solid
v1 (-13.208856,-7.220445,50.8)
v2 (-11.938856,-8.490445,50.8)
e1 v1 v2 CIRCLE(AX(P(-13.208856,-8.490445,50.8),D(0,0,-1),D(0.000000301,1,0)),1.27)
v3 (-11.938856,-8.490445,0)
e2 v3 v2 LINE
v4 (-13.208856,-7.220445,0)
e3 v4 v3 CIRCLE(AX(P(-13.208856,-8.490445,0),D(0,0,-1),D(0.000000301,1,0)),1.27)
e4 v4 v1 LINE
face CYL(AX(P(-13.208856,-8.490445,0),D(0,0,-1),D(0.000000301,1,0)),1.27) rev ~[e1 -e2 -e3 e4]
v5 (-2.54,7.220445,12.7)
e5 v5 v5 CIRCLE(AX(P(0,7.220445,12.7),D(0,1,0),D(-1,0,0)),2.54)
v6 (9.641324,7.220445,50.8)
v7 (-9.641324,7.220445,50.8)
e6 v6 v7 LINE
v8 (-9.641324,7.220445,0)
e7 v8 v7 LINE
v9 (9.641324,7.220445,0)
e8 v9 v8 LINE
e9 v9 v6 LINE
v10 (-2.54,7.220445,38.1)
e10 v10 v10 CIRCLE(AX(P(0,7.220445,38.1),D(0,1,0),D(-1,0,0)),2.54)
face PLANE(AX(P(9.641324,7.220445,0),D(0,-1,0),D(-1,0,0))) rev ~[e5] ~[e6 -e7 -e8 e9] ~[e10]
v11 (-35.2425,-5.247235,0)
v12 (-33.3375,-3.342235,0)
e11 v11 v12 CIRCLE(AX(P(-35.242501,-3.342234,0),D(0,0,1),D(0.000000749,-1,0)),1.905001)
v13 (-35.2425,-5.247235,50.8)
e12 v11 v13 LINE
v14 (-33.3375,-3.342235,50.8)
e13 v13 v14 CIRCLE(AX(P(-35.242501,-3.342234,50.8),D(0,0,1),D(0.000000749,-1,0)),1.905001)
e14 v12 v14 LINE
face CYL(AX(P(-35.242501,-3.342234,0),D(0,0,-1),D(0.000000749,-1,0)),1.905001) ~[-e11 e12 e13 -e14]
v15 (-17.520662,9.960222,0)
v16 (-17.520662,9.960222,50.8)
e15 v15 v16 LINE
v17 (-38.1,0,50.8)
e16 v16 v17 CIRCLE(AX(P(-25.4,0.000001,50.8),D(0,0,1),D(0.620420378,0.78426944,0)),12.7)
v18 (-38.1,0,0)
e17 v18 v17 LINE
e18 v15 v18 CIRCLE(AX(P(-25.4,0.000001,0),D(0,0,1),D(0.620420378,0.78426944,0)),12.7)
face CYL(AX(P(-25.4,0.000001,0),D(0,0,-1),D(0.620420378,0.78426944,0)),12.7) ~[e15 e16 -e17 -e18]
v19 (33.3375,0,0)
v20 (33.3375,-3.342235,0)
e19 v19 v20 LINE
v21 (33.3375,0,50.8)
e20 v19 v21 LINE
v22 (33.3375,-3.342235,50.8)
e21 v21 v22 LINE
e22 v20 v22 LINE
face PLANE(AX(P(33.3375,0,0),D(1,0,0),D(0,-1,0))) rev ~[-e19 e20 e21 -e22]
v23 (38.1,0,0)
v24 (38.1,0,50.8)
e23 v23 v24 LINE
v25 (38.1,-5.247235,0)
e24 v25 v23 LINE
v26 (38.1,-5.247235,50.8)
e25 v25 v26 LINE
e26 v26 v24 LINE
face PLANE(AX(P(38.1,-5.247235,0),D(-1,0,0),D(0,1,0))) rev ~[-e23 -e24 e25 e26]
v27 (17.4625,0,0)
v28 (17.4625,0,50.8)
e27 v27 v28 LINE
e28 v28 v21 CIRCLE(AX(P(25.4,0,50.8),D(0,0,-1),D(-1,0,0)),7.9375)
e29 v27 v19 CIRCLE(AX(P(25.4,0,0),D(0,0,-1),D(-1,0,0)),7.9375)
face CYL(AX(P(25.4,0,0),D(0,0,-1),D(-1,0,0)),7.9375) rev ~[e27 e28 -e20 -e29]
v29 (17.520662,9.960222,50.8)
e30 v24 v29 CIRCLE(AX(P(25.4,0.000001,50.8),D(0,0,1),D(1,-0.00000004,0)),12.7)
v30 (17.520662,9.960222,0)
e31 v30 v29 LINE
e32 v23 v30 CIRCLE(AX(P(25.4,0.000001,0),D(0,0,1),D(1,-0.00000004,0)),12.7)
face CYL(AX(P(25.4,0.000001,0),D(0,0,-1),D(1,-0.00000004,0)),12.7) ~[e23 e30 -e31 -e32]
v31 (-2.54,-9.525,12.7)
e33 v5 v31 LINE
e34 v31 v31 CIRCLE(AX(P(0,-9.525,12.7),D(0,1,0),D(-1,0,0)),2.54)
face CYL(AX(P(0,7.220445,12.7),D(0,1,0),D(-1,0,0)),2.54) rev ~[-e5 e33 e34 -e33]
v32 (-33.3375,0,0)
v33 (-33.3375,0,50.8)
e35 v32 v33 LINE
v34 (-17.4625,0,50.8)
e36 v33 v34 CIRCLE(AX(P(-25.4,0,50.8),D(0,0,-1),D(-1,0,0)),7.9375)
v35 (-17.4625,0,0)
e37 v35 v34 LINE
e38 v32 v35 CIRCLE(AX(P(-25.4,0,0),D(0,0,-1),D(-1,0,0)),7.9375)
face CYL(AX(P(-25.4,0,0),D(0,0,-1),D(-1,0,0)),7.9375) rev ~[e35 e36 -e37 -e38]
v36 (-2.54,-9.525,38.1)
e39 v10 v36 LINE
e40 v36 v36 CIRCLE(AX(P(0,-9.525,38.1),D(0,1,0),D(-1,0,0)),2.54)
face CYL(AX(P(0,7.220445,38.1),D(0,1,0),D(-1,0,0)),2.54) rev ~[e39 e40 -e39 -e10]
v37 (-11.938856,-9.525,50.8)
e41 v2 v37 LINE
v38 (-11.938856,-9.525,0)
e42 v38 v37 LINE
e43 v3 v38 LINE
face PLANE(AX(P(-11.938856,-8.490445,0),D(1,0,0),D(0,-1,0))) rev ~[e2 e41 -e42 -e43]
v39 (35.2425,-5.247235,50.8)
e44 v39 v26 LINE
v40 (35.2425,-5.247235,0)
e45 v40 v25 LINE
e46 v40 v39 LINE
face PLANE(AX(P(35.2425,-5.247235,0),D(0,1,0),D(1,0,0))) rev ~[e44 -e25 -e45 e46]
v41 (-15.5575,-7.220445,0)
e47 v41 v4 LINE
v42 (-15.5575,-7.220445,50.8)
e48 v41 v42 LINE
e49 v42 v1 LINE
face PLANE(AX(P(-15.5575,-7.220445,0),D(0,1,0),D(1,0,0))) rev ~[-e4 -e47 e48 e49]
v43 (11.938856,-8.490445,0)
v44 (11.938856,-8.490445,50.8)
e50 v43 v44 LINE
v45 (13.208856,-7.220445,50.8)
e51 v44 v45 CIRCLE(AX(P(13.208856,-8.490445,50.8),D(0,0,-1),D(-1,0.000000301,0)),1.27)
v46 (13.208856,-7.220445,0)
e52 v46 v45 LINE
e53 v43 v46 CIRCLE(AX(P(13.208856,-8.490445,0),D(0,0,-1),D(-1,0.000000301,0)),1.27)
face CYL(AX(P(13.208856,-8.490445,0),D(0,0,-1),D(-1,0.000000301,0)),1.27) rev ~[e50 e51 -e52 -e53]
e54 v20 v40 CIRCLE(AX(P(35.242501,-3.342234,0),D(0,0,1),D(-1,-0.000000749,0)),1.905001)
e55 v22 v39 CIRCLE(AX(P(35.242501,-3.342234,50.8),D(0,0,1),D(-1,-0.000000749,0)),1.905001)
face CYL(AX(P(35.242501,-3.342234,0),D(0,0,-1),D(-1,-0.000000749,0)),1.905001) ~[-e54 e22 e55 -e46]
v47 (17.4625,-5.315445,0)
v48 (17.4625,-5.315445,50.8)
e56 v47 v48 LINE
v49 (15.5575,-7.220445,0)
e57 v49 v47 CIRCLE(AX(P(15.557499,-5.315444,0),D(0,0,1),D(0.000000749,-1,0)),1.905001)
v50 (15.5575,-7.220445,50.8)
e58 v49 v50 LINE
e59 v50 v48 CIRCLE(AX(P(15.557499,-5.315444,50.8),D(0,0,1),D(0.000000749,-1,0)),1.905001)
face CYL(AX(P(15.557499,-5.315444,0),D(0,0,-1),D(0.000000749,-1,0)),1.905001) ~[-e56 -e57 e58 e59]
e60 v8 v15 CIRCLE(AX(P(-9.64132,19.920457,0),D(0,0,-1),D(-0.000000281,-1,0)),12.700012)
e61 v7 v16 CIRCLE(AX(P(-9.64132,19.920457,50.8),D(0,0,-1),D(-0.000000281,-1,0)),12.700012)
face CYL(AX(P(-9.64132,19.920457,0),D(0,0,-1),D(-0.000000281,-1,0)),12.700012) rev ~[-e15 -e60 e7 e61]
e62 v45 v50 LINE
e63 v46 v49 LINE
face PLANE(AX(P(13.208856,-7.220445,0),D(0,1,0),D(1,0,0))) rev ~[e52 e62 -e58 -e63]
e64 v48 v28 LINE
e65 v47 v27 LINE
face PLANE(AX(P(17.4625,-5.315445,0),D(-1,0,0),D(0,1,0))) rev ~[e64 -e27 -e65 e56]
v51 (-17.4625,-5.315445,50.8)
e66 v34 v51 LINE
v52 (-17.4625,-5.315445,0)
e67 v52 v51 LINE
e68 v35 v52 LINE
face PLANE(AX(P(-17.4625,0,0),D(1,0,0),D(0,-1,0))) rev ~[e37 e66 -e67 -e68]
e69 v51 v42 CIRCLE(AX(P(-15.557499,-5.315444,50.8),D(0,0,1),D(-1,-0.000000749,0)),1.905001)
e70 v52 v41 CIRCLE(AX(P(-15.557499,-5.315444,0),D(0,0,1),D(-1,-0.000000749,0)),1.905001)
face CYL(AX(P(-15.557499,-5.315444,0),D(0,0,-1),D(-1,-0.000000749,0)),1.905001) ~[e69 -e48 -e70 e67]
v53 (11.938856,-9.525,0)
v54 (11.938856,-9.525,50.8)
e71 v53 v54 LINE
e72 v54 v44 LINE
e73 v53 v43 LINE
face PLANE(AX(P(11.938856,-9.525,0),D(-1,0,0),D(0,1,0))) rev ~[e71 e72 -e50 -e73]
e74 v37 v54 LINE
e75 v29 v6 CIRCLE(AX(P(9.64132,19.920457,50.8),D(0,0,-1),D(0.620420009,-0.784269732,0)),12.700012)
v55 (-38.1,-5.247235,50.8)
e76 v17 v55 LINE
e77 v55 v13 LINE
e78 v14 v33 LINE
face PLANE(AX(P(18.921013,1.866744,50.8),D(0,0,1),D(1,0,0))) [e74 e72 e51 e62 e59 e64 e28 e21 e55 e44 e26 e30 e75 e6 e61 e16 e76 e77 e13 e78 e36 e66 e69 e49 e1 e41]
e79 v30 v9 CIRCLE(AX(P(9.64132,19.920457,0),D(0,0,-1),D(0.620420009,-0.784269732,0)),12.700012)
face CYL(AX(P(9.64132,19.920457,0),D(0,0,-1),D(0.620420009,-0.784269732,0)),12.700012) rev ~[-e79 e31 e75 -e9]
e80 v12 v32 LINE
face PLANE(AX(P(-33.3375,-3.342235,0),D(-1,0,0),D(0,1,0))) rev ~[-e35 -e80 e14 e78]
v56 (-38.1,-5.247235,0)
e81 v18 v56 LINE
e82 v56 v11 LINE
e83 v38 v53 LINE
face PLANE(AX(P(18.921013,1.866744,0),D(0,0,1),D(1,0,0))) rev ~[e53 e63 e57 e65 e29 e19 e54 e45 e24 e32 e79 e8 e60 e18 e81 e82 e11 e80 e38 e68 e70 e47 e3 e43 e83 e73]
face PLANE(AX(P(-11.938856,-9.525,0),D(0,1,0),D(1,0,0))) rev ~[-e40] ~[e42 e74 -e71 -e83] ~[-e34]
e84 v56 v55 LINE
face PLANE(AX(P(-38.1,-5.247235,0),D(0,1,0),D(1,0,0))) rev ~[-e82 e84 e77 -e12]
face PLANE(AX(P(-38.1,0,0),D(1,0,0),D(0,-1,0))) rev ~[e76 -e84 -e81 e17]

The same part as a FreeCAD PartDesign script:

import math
import FreeCAD as App
import Part
import Sketcher
Q = App.Units.Quantity

doc = App.newDocument("Part")
params = doc.addObject("Spreadsheet::Sheet", "Params")
for row, (alias, value) in enumerate([
    ("sketch1_radius", "0.5 in"),
    ("sketch1_radius2", "0.05 in"),
    ("sketch1_radius3", "0.0750001 in"),
    ("sketch1_radius4", "0.3125 in"),
    ("pad1_length", "2 in"),
    ("sketch2_diameter", "0.2 in"),
], start=1):
    params.set(f"A{row}", alias)
    params.set(f"B{row}", "=" + value)
    params.setAlias(f"B{row}", alias)

body = doc.addObject("PartDesign::Body", "Body")

# Sketch on XY plane
sketch1 = doc.addObject("Sketcher::SketchObject", "Sketch")
body.addObject(sketch1)
sketch1.AttachmentSupport = (doc.XY_Plane, [""])
sketch1.MapMode = "FlatFace"
sketch1.addGeometry(Part.LineSegment(App.Vector(38.1, -5.247235, 0), App.Vector(38.1, 0, 0)), False)
sketch1.addGeometry(Part.ArcOfCircle(Part.Circle(App.Vector(25.4, 0.000001, 0), App.Vector(0, 0, 1), 12.7), math.radians(-0.000002), math.radians(128.346839)), False)
sketch1.addGeometry(Part.ArcOfCircle(Part.Circle(App.Vector(9.64132, 19.920457, 0), App.Vector(0, 0, 1), 12.700012), math.radians(-89.999984), math.radians(-51.653188)), False)
sketch1.addGeometry(Part.LineSegment(App.Vector(9.641324, 7.220445, 0), App.Vector(-9.641324, 7.220445, 0)), False)
sketch1.addGeometry(Part.ArcOfCircle(Part.Circle(App.Vector(-9.64132, 19.920457, 0), App.Vector(0, 0, 1), 12.700012), math.radians(-128.346812), math.radians(-90.000016)), False)
sketch1.addGeometry(Part.ArcOfCircle(Part.Circle(App.Vector(-25.4, 0.000001, 0), App.Vector(0, 0, 1), 12.7), math.radians(51.653161), math.radians(180.000002)), False)
sketch1.addGeometry(Part.LineSegment(App.Vector(-38.1, 0, 0), App.Vector(-38.1, -5.247235, 0)), False)
sketch1.addGeometry(Part.LineSegment(App.Vector(-38.1, -5.247235, 0), App.Vector(-35.2425, -5.247235, 0)), False)
sketch1.addGeometry(Part.ArcOfCircle(Part.Circle(App.Vector(-35.242501, -3.342234, 0), App.Vector(0, 0, 1), 1.905001), math.radians(-89.999957), math.radians(-0.000043)), False)
sketch1.addGeometry(Part.LineSegment(App.Vector(-33.3375, -3.342235, 0), App.Vector(-33.3375, 0, 0)), False)
sketch1.addGeometry(Part.ArcOfCircle(Part.Circle(App.Vector(-25.4, 0, 0), App.Vector(0, 0, 1), 7.9375), math.radians(0), math.radians(180)), False)
sketch1.addGeometry(Part.LineSegment(App.Vector(-17.4625, 0, 0), App.Vector(-17.4625, -5.315445, 0)), False)
sketch1.addGeometry(Part.ArcOfCircle(Part.Circle(App.Vector(-15.557499, -5.315444, 0), App.Vector(0, 0, 1), 1.905001), math.radians(-179.999957), math.radians(-90.000043)), False)
sketch1.addGeometry(Part.LineSegment(App.Vector(-15.5575, -7.220445, 0), App.Vector(-13.208856, -7.220445, 0)), False)
sketch1.addGeometry(Part.ArcOfCircle(Part.Circle(App.Vector(-13.208856, -8.490445, 0), App.Vector(0, 0, 1), 1.27), math.radians(0.000017), math.radians(89.999983)), False)
sketch1.addGeometry(Part.LineSegment(App.Vector(-11.938856, -8.490445, 0), App.Vector(-11.938856, -9.525, 0)), False)
sketch1.addGeometry(Part.LineSegment(App.Vector(-11.938856, -9.525, 0), App.Vector(11.938856, -9.525, 0)), False)
sketch1.addGeometry(Part.LineSegment(App.Vector(11.938856, -9.525, 0), App.Vector(11.938856, -8.490445, 0)), False)
sketch1.addGeometry(Part.ArcOfCircle(Part.Circle(App.Vector(13.208856, -8.490445, 0), App.Vector(0, 0, 1), 1.27), math.radians(90.000017), math.radians(179.999983)), False)
sketch1.addGeometry(Part.LineSegment(App.Vector(13.208856, -7.220445, 0), App.Vector(15.5575, -7.220445, 0)), False)
sketch1.addGeometry(Part.ArcOfCircle(Part.Circle(App.Vector(15.557499, -5.315444, 0), App.Vector(0, 0, 1), 1.905001), math.radians(-89.999957), math.radians(-0.000043)), False)
sketch1.addGeometry(Part.LineSegment(App.Vector(17.4625, -5.315445, 0), App.Vector(17.4625, 0, 0)), False)
sketch1.addGeometry(Part.ArcOfCircle(Part.Circle(App.Vector(25.4, 0, 0), App.Vector(0, 0, 1), 7.9375), math.radians(0), math.radians(180)), False)
sketch1.addGeometry(Part.LineSegment(App.Vector(33.3375, 0, 0), App.Vector(33.3375, -3.342235, 0)), False)
sketch1.addGeometry(Part.ArcOfCircle(Part.Circle(App.Vector(35.242501, -3.342234, 0), App.Vector(0, 0, 1), 1.905001), math.radians(-179.999957), math.radians(-90.000043)), False)
sketch1.addGeometry(Part.LineSegment(App.Vector(35.2425, -5.247235, 0), App.Vector(38.1, -5.247235, 0)), False)
sketch1.addConstraint(Sketcher.Constraint("Tangent", 0, 2, 1, 1))
sketch1.addConstraint(Sketcher.Constraint("Tangent", 1, 2, 2, 2))
sketch1.addConstraint(Sketcher.Constraint("Tangent", 2, 1, 3, 1))
sketch1.addConstraint(Sketcher.Constraint("Tangent", 3, 2, 4, 2))
sketch1.addConstraint(Sketcher.Constraint("Tangent", 4, 1, 5, 1))
sketch1.addConstraint(Sketcher.Constraint("Tangent", 5, 2, 6, 1))
sketch1.addConstraint(Sketcher.Constraint("Coincident", 6, 2, 7, 1))
sketch1.addConstraint(Sketcher.Constraint("Tangent", 7, 2, 8, 1))
sketch1.addConstraint(Sketcher.Constraint("Tangent", 8, 2, 9, 1))
sketch1.addConstraint(Sketcher.Constraint("Tangent", 9, 2, 10, 2))
sketch1.addConstraint(Sketcher.Constraint("Tangent", 10, 1, 11, 1))
sketch1.addConstraint(Sketcher.Constraint("Tangent", 11, 2, 12, 1))
sketch1.addConstraint(Sketcher.Constraint("Tangent", 12, 2, 13, 1))
sketch1.addConstraint(Sketcher.Constraint("Tangent", 13, 2, 14, 2))
sketch1.addConstraint(Sketcher.Constraint("Tangent", 14, 1, 15, 1))
sketch1.addConstraint(Sketcher.Constraint("Coincident", 15, 2, 16, 1))
sketch1.addConstraint(Sketcher.Constraint("Coincident", 16, 2, 17, 1))
sketch1.addConstraint(Sketcher.Constraint("Tangent", 17, 2, 18, 2))
sketch1.addConstraint(Sketcher.Constraint("Tangent", 18, 1, 19, 1))
sketch1.addConstraint(Sketcher.Constraint("Tangent", 19, 2, 20, 1))
sketch1.addConstraint(Sketcher.Constraint("Tangent", 20, 2, 21, 1))
sketch1.addConstraint(Sketcher.Constraint("Tangent", 21, 2, 22, 2))
sketch1.addConstraint(Sketcher.Constraint("Tangent", 22, 1, 23, 1))
sketch1.addConstraint(Sketcher.Constraint("Tangent", 23, 2, 24, 1))
sketch1.addConstraint(Sketcher.Constraint("Tangent", 24, 2, 25, 1))
sketch1.addConstraint(Sketcher.Constraint("Coincident", 25, 2, 0, 1))
sketch1.addConstraint(Sketcher.Constraint("Vertical", 0))
sketch1.addConstraint(Sketcher.Constraint("Horizontal", 3))
sketch1.addConstraint(Sketcher.Constraint("Vertical", 6))
sketch1.addConstraint(Sketcher.Constraint("Horizontal", 7))
sketch1.addConstraint(Sketcher.Constraint("Vertical", 9))
sketch1.addConstraint(Sketcher.Constraint("Vertical", 11))
sketch1.addConstraint(Sketcher.Constraint("Horizontal", 13))
sketch1.addConstraint(Sketcher.Constraint("Vertical", 15))
sketch1.addConstraint(Sketcher.Constraint("Horizontal", 16))
sketch1.addConstraint(Sketcher.Constraint("Vertical", 17))
sketch1.addConstraint(Sketcher.Constraint("Horizontal", 19))
sketch1.addConstraint(Sketcher.Constraint("Vertical", 21))
sketch1.addConstraint(Sketcher.Constraint("Vertical", 23))
sketch1.addConstraint(Sketcher.Constraint("Horizontal", 25))
sketch1.addConstraint(Sketcher.Constraint("Coincident", 10, 3, 5, 3))
sketch1.addConstraint(Sketcher.Constraint("Coincident", 22, 3, 1, 3))
sketch1.addConstraint(Sketcher.Constraint("Equal", 2, 4))
sketch1.addConstraint(Sketcher.Constraint("Equal", 1, 5))
sketch1.addConstraint(Sketcher.Constraint("Equal", 8, 12))
sketch1.addConstraint(Sketcher.Constraint("Equal", 14, 18))
sketch1.addConstraint(Sketcher.Constraint("Equal", 12, 20))
sketch1.addConstraint(Sketcher.Constraint("Equal", 10, 22))
sketch1.addConstraint(Sketcher.Constraint("Equal", 20, 24))
sketch1.addConstraint(Sketcher.Constraint("Symmetric", 1, 3, 5, 3, -1, 1))
sketch1.addConstraint(Sketcher.Constraint("Symmetric", 14, 3, 18, 3, -2))
sketch1.addConstraint(Sketcher.Constraint("PointOnObject", 1, 3, -1))
sketch1.addConstraint(Sketcher.Constraint("Horizontal", 8, 3, 24, 3))
sketch1.addConstraint(Sketcher.Constraint("Radius", 1, Q("0.5 in")))
sketch1.addConstraint(Sketcher.Constraint("Radius", 14, Q("0.05 in")))
sketch1.addConstraint(Sketcher.Constraint("DistanceX", -1, 1, 1, 3, Q("1 in")))
sketch1.addConstraint(Sketcher.Constraint("Radius", 8, Q("0.0750001 in")))
sketch1.addConstraint(Sketcher.Constraint("Radius", 10, Q("0.3125 in")))
sketch1.addConstraint(Sketcher.Constraint("DistanceY", 15, 2, -1, 1, Q("0.375 in")))
sketch1.addConstraint(Sketcher.Constraint("Radius", 2, Q("12.700012 mm")))
sketch1.addConstraint(Sketcher.Constraint("DistanceX", 16, 1, 16, 2, Q("23.877712 mm")))
sketch1.addConstraint(Sketcher.Constraint("DistanceY", 12, 3, 4, 3, Q("25.235901 mm")))
sketch1.addConstraint(Sketcher.Constraint("DistanceX", 3, 2, 3, 1, Q("19.282648 mm")))
sketch1.addConstraint(Sketcher.Constraint("DistanceY", 0, 1, 0, 2, Q("5.247235 mm")))
sketch1.setExpression("Constraints[53]", "Params.sketch1_radius")
sketch1.setExpression("Constraints[54]", "Params.sketch1_radius2")
sketch1.setExpression("Constraints[56]", "Params.sketch1_radius3")
sketch1.setExpression("Constraints[57]", "Params.sketch1_radius4")
pad1 = doc.addObject("PartDesign::Pad", "Pad")
body.addObject(pad1)
pad1.Profile = sketch1
pad1.setExpression("Length", "Params.pad1_length")

# Sketch on XZ plane
sketch2 = doc.addObject("Sketcher::SketchObject", "Sketch001")
body.addObject(sketch2)
sketch2.AttachmentSupport = (doc.XZ_Plane, [""])
sketch2.MapMode = "FlatFace"
sketch2.AttachmentOffset = App.Placement(App.Vector(0, 0, -7.220445), App.Rotation())
sketch2.addGeometry(Part.Circle(App.Vector(0, 12.7, 0), App.Vector(0, 0, 1), 2.54), False)
sketch2.addGeometry(Part.Circle(App.Vector(0, 38.1, 0), App.Vector(0, 0, 1), 2.54), False)
sketch2.addConstraint(Sketcher.Constraint("Equal", 0, 1))
sketch2.addConstraint(Sketcher.Constraint("PointOnObject", 0, 3, -2))
sketch2.addConstraint(Sketcher.Constraint("PointOnObject", 1, 3, -2))
sketch2.addConstraint(Sketcher.Constraint("Diameter", 0, Q("0.2 in")))
sketch2.addConstraint(Sketcher.Constraint("DistanceY", 0, 3, 1, 3, Q("1 in")))
sketch2.addConstraint(Sketcher.Constraint("DistanceY", -1, 1, 0, 3, Q("0.5 in")))
sketch2.setExpression("Constraints[3]", "Params.sketch2_diameter")
pocket1 = doc.addObject("PartDesign::Pocket", "Pocket")
body.addObject(pocket1)
pocket1.Profile = sketch2
pocket1.Type = "ThroughAll"
pocket1.Reversed = True

doc.recompute()
